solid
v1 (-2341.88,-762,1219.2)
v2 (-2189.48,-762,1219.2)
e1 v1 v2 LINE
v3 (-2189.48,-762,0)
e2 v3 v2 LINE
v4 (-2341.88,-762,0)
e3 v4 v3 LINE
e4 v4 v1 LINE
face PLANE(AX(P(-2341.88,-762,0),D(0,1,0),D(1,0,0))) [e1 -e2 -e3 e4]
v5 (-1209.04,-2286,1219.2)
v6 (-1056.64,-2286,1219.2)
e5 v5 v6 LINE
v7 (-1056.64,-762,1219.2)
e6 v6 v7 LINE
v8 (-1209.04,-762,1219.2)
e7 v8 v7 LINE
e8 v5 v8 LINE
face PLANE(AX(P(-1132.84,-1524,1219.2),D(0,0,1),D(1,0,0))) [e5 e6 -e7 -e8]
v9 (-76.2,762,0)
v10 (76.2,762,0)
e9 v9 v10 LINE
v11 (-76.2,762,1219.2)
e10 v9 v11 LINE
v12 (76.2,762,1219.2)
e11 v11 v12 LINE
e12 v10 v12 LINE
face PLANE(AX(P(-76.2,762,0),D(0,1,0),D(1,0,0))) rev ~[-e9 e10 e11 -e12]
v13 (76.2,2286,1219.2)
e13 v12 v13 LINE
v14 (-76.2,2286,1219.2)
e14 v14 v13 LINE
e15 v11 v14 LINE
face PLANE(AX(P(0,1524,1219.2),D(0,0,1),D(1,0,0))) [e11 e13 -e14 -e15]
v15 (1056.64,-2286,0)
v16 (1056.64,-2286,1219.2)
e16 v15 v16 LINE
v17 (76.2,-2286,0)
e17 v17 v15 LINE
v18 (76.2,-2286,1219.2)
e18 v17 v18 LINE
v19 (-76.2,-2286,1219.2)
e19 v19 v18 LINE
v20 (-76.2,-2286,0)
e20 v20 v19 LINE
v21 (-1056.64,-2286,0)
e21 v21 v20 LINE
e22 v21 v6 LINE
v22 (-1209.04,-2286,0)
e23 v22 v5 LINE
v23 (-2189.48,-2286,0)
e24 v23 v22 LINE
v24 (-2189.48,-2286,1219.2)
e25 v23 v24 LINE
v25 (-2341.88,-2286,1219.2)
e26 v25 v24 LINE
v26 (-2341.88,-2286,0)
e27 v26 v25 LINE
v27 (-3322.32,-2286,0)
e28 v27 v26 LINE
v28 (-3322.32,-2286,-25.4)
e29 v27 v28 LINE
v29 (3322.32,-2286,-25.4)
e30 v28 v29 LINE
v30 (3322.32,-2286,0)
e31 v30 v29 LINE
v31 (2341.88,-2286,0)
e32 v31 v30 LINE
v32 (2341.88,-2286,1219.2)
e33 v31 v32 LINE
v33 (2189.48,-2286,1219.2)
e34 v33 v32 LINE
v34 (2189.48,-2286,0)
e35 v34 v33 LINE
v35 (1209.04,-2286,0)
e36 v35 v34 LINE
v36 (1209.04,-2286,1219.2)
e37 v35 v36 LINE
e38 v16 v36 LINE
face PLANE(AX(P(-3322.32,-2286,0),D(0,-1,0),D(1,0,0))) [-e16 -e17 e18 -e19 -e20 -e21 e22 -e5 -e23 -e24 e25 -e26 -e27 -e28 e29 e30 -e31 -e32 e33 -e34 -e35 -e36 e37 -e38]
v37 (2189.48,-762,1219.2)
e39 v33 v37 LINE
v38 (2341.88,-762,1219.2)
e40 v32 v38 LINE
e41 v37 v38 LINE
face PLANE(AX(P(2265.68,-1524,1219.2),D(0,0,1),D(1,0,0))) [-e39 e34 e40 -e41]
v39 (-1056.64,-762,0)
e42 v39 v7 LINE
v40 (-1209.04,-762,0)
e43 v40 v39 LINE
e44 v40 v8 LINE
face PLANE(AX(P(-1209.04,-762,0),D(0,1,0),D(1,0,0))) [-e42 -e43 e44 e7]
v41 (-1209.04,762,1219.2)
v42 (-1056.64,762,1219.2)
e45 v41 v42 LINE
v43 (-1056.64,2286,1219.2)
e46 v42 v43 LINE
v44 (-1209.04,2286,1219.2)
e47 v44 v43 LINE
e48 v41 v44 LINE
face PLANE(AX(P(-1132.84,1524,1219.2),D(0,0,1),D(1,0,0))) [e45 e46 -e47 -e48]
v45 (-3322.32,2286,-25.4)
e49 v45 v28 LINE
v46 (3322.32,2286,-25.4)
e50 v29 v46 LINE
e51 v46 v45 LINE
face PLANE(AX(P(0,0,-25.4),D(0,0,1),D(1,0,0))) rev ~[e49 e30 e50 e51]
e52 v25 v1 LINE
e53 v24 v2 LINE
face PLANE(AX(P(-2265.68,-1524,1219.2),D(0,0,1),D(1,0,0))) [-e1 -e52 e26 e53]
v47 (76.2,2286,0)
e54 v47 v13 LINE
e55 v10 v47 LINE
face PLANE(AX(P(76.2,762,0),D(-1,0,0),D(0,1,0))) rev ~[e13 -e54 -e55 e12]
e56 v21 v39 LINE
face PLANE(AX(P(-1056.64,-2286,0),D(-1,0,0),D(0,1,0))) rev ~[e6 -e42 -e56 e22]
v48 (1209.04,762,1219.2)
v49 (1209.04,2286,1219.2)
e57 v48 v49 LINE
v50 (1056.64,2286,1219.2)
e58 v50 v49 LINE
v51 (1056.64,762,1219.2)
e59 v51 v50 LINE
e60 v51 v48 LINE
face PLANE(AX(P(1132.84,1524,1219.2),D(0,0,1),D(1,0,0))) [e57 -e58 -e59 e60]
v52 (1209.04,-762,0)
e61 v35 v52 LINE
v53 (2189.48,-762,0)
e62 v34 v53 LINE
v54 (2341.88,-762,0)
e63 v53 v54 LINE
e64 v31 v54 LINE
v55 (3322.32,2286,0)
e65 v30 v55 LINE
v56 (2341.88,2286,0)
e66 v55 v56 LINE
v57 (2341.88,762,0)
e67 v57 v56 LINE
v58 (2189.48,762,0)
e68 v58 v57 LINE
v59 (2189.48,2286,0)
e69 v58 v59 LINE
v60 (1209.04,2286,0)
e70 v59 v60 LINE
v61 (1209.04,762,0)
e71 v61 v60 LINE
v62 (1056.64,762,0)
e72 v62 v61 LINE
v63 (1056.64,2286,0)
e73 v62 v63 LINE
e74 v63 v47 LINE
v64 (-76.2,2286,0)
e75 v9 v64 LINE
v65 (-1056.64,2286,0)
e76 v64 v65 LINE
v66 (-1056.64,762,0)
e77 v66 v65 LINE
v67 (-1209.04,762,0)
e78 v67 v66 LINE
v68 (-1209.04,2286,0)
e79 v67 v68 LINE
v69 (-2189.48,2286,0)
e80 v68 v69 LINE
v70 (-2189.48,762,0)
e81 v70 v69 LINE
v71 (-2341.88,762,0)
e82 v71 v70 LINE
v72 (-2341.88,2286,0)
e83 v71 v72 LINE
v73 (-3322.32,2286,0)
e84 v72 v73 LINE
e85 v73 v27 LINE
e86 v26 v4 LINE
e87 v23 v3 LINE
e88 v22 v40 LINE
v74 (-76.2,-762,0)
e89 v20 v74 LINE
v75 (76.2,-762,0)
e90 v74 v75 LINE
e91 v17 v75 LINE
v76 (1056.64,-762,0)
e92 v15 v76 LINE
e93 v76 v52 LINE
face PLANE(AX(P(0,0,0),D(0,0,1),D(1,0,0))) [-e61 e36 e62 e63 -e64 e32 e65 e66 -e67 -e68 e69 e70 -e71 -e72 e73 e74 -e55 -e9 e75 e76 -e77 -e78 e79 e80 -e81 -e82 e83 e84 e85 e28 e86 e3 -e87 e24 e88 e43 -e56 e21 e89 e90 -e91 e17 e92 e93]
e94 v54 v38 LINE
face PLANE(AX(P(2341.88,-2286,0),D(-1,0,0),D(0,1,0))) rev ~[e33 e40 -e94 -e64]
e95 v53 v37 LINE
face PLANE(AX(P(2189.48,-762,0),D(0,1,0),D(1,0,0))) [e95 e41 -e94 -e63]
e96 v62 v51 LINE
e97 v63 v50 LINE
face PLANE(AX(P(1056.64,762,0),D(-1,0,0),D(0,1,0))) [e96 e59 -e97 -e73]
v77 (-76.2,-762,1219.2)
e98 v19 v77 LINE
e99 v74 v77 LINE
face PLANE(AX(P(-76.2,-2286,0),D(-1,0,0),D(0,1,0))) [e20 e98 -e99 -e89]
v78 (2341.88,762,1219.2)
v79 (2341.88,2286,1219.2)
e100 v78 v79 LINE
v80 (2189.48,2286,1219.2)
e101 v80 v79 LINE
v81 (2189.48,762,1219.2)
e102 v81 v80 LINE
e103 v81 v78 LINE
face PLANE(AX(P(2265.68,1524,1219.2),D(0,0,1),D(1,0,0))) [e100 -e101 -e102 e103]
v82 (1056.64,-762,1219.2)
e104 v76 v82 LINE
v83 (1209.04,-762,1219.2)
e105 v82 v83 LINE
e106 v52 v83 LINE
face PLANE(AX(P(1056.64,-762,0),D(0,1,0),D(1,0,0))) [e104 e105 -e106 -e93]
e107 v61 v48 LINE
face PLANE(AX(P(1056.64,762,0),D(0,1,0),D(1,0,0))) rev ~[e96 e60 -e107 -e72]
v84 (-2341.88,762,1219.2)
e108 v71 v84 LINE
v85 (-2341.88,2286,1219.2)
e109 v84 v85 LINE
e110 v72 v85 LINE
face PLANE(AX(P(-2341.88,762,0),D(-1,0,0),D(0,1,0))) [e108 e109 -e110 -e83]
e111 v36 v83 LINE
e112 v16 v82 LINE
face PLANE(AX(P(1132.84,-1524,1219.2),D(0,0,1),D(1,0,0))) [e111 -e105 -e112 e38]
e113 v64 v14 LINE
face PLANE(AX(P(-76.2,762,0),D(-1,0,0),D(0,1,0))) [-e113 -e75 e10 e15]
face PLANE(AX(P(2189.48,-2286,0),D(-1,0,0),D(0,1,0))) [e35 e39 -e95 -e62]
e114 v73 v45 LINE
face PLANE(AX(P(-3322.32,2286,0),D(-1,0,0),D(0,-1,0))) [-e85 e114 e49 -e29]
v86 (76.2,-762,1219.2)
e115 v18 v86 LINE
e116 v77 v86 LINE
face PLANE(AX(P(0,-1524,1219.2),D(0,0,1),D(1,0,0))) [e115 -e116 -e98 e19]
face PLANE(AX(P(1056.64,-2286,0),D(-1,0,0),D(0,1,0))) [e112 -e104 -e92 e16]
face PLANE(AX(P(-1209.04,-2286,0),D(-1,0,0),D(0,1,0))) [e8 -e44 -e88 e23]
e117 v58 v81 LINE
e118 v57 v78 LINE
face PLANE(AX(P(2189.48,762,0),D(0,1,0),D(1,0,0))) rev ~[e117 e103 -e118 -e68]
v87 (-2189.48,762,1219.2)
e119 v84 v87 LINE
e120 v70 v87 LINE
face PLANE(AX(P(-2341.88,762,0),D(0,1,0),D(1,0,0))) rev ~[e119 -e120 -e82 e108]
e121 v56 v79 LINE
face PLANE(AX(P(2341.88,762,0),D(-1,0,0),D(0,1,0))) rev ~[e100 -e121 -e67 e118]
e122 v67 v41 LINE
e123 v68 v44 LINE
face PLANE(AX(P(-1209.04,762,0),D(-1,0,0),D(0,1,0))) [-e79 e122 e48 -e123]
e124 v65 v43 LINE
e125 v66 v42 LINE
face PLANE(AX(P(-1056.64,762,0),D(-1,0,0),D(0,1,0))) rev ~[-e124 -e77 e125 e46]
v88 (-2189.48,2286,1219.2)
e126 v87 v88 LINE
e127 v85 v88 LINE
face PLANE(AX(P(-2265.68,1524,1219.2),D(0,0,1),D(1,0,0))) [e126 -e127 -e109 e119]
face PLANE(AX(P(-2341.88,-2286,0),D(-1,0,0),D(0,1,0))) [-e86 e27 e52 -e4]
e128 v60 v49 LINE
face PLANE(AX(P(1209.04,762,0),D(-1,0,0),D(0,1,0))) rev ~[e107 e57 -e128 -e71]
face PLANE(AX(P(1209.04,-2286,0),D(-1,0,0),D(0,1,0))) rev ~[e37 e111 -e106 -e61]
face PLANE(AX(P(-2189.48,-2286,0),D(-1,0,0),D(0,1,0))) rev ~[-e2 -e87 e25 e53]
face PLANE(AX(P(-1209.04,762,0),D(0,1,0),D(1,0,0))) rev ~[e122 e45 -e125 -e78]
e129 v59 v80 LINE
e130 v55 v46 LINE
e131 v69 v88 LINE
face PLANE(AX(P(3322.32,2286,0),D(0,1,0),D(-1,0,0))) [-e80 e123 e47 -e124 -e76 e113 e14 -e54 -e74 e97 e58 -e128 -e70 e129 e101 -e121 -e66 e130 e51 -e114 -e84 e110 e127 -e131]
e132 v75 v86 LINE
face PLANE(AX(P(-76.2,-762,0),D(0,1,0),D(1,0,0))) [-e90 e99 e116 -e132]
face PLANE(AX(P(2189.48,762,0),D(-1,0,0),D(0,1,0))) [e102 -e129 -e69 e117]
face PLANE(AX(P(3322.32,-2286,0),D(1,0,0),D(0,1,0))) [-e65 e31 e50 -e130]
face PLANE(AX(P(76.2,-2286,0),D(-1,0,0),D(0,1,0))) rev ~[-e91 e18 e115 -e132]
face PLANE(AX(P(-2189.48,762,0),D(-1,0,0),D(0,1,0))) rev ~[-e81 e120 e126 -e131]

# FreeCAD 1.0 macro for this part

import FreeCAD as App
import Part
import Sketcher
Q = App.Units.Quantity

doc = App.newDocument("Part")
params = doc.addObject("Spreadsheet::Sheet", "Params")
for row, (alias, value) in enumerate([
    ("sketch1_height", "180 in"),
    ("sketch1_width", "261.6 in"),
    ("pad1_length", "1 in"),
    ("sketch2_width", "6 in"),
    ("sketch2_height", "60 in"),
    ("pad2_length", "48 in"),
], start=1):
    params.set(f"A{row}", alias)
    params.set(f"B{row}", "=" + value)
    params.setAlias(f"B{row}", alias)

body = doc.addObject("PartDesign::Body", "Body")

sketch1 = body.newObject("Sketcher::SketchObject", "Sketch")
sketch1.AttachmentSupport = (doc.getObject("XY_Plane"), [""])
sketch1.MapMode = "FlatFace"
sketch1.addGeometry([
    Part.LineSegment(App.Vector(-3322.32, -2286, 0), App.Vector(3322.32, -2286, 0)),
    Part.LineSegment(App.Vector(3322.32, -2286, 0), App.Vector(3322.32, 2286, 0)),
    Part.LineSegment(App.Vector(3322.32, 2286, 0), App.Vector(-3322.32, 2286, 0)),
    Part.LineSegment(App.Vector(-3322.32, 2286, 0), App.Vector(-3322.32, -2286, 0)),
], False)
sketch1.addConstraint([
    Sketcher.Constraint("Coincident", 0, 2, 1, 1),
    Sketcher.Constraint("Coincident", 1, 2, 2, 1),
    Sketcher.Constraint("Coincident", 2, 2, 3, 1),
    Sketcher.Constraint("Coincident", 3, 2, 0, 1),
    Sketcher.Constraint("Horizontal", 0),
    Sketcher.Constraint("Vertical", 1),
    Sketcher.Constraint("Horizontal", 2),
    Sketcher.Constraint("Vertical", 3),
    Sketcher.Constraint("Symmetric", 0, 2, 2, 2, -1, 1),
    Sketcher.Constraint("DistanceY", 1, 1, 1, 2, Q("180 in")),
    Sketcher.Constraint("DistanceX", 0, 1, 0, 2, Q("261.6 in")),
])
sketch1.setExpression("Constraints[9]", "Params.sketch1_height")
sketch1.setExpression("Constraints[10]", "Params.sketch1_width")
pad1 = body.newObject("PartDesign::Pad", "Pad")
pad1.Profile = sketch1
pad1.setExpression("Length", "Params.pad1_length")
pad1.Reversed = True

sketch2 = body.newObject("Sketcher::SketchObject", "Sketch001")
sketch2.AttachmentSupport = (doc.getObject("XY_Plane"), [""])
sketch2.MapMode = "FlatFace"
sketch2.addGeometry([
    Part.LineSegment(App.Vector(-2341.88, -762, 0), App.Vector(-2341.88, -2286, 0)),
    Part.LineSegment(App.Vector(-2341.88, -2286, 0), App.Vector(-2189.48, -2286, 0)),
    Part.LineSegment(App.Vector(-2189.48, -2286, 0), App.Vector(-2189.48, -762, 0)),
    Part.LineSegment(App.Vector(-2189.48, -762, 0), App.Vector(-2341.88, -762, 0)),
    Part.LineSegment(App.Vector(-2341.88, 2286, 0), App.Vector(-2341.88, 762, 0)),
    Part.LineSegment(App.Vector(-2341.88, 762, 0), App.Vector(-2189.48, 762, 0)),
    Part.LineSegment(App.Vector(-2189.48, 762, 0), App.Vector(-2189.48, 2286, 0)),
    Part.LineSegment(App.Vector(-2189.48, 2286, 0), App.Vector(-2341.88, 2286, 0)),
    Part.LineSegment(App.Vector(-1209.04, -762, 0), App.Vector(-1209.04, -2286, 0)),
    Part.LineSegment(App.Vector(-1209.04, -2286, 0), App.Vector(-1056.64, -2286, 0)),
    Part.LineSegment(App.Vector(-1056.64, -2286, 0), App.Vector(-1056.64, -762, 0)),
    Part.LineSegment(App.Vector(-1056.64, -762, 0), App.Vector(-1209.04, -762, 0)),
    Part.LineSegment(App.Vector(-1209.04, 2286, 0), App.Vector(-1209.04, 762, 0)),
    Part.LineSegment(App.Vector(-1209.04, 762, 0), App.Vector(-1056.64, 762, 0)),
    Part.LineSegment(App.Vector(-1056.64, 762, 0), App.Vector(-1056.64, 2286, 0)),
    Part.LineSegment(App.Vector(-1056.64, 2286, 0), App.Vector(-1209.04, 2286, 0)),
    Part.LineSegment(App.Vector(-76.2, -762, 0), App.Vector(-76.2, -2286, 0)),
    Part.LineSegment(App.Vector(-76.2, -2286, 0), App.Vector(76.2, -2286, 0)),
    Part.LineSegment(App.Vector(76.2, -2286, 0), App.Vector(76.2, -762, 0)),
    Part.LineSegment(App.Vector(76.2, -762, 0), App.Vector(-76.2, -762, 0)),
    Part.LineSegment(App.Vector(-76.2, 2286, 0), App.Vector(-76.2, 762, 0)),
    Part.LineSegment(App.Vector(-76.2, 762, 0), App.Vector(76.2, 762, 0)),
    Part.LineSegment(App.Vector(76.2, 762, 0), App.Vector(76.2, 2286, 0)),
    Part.LineSegment(App.Vector(76.2, 2286, 0), App.Vector(-76.2, 2286, 0)),
    Part.LineSegment(App.Vector(1056.64, 2286, 0), App.Vector(1056.64, 762, 0)),
    Part.LineSegment(App.Vector(1056.64, 762, 0), App.Vector(1209.04, 762, 0)),
    Part.LineSegment(App.Vector(1209.04, 762, 0), App.Vector(1209.04, 2286, 0)),
    Part.LineSegment(App.Vector(1209.04, 2286, 0), App.Vector(1056.64, 2286, 0)),
    Part.LineSegment(App.Vector(1056.64, -762, 0), App.Vector(1056.64, -2286, 0)),
    Part.LineSegment(App.Vector(1056.64, -2286, 0), App.Vector(1209.04, -2286, 0)),
    Part.LineSegment(App.Vector(1209.04, -2286, 0), App.Vector(1209.04, -762, 0)),
    Part.LineSegment(App.Vector(1209.04, -762, 0), App.Vector(1056.64, -762, 0)),
    Part.LineSegment(App.Vector(2189.48, -762, 0), App.Vector(2189.48, -2286, 0)),
    Part.LineSegment(App.Vector(2189.48, -2286, 0), App.Vector(2341.88, -2286, 0)),
    Part.LineSegment(App.Vector(2341.88, -2286, 0), App.Vector(2341.88, -762, 0)),
    Part.LineSegment(App.Vector(2341.88, -762, 0), App.Vector(2189.48, -762, 0)),
    Part.LineSegment(App.Vector(2189.48, 2286, 0), App.Vector(2189.48, 762, 0)),
    Part.LineSegment(App.Vector(2189.48, 762, 0), App.Vector(2341.88, 762, 0)),
    Part.LineSegment(App.Vector(2341.88, 762, 0), App.Vector(2341.88, 2286, 0)),
    Part.LineSegment(App.Vector(2341.88, 2286, 0), App.Vector(2189.48, 2286, 0)),
], False)
sketch2.addConstraint([
    Sketcher.Constraint("Coincident", 0, 2, 1, 1),
    Sketcher.Constraint("Coincident", 1, 2, 2, 1),
    Sketcher.Constraint("Coincident", 2, 2, 3, 1),
    Sketcher.Constraint("Coincident", 3, 2, 0, 1),
    Sketcher.Constraint("Coincident", 4, 2, 5, 1),
    Sketcher.Constraint("Coincident", 5, 2, 6, 1),
    Sketcher.Constraint("Coincident", 6, 2, 7, 1),
    Sketcher.Constraint("Coincident", 7, 2, 4, 1),
    Sketcher.Constraint("Coincident", 8, 2, 9, 1),
    Sketcher.Constraint("Coincident", 9, 2, 10, 1),
    Sketcher.Constraint("Coincident", 10, 2, 11, 1),
    Sketcher.Constraint("Coincident", 11, 2, 8, 1),
    Sketcher.Constraint("Coincident", 12, 2, 13, 1),
    Sketcher.Constraint("Coincident", 13, 2, 14, 1),
    Sketcher.Constraint("Coincident", 14, 2, 15, 1),
    Sketcher.Constraint("Coincident", 15, 2, 12, 1),
    Sketcher.Constraint("Coincident", 16, 2, 17, 1),
    Sketcher.Constraint("Coincident", 17, 2, 18, 1),
    Sketcher.Constraint("Coincident", 18, 2, 19, 1),
    Sketcher.Constraint("Coincident", 19, 2, 16, 1),
    Sketcher.Constraint("Coincident", 20, 2, 21, 1),
    Sketcher.Constraint("Coincident", 21, 2, 22, 1),
    Sketcher.Constraint("Coincident", 22, 2, 23, 1),
    Sketcher.Constraint("Coincident", 23, 2, 20, 1),
    Sketcher.Constraint("Coincident", 24, 2, 25, 1),
    Sketcher.Constraint("Coincident", 25, 2, 26, 1),
    Sketcher.Constraint("Coincident", 26, 2, 27, 1),
    Sketcher.Constraint("Coincident", 27, 2, 24, 1),
    Sketcher.Constraint("Coincident", 28, 2, 29, 1),
    Sketcher.Constraint("Coincident", 29, 2, 30, 1),
    Sketcher.Constraint("Coincident", 30, 2, 31, 1),
    Sketcher.Constraint("Coincident", 31, 2, 28, 1),
    Sketcher.Constraint("Coincident", 32, 2, 33, 1),
    Sketcher.Constraint("Coincident", 33, 2, 34, 1),
    Sketcher.Constraint("Coincident", 34, 2, 35, 1),
    Sketcher.Constraint("Coincident", 35, 2, 32, 1),
    Sketcher.Constraint("Coincident", 36, 2, 37, 1),
    Sketcher.Constraint("Coincident", 37, 2, 38, 1),
    Sketcher.Constraint("Coincident", 38, 2, 39, 1),
    Sketcher.Constraint("Coincident", 39, 2, 36, 1),
    Sketcher.Constraint("Vertical", 0),
    Sketcher.Constraint("Horizontal", 1),
    Sketcher.Constraint("Vertical", 2),
    Sketcher.Constraint("Horizontal", 3),
    Sketcher.Constraint("Vertical", 4),
    Sketcher.Constraint("Horizontal", 5),
    Sketcher.Constraint("Vertical", 6),
    Sketcher.Constraint("Horizontal", 7),
    Sketcher.Constraint("Vertical", 8),
    Sketcher.Constraint("Horizontal", 9),
    Sketcher.Constraint("Vertical", 10),
    Sketcher.Constraint("Horizontal", 11),
    Sketcher.Constraint("Vertical", 12),
    Sketcher.Constraint("Horizontal", 13),
    Sketcher.Constraint("Vertical", 14),
    Sketcher.Constraint("Horizontal", 15),
    Sketcher.Constraint("Vertical", 16),
    Sketcher.Constraint("Horizontal", 17),
    Sketcher.Constraint("Vertical", 18),
    Sketcher.Constraint("Horizontal", 19),
    Sketcher.Constraint("Vertical", 20),
    Sketcher.Constraint("Horizontal", 21),
    Sketcher.Constraint("Vertical", 22),
    Sketcher.Constraint("Horizontal", 23),
    Sketcher.Constraint("Vertical", 24),
    Sketcher.Constraint("Horizontal", 25),
    Sketcher.Constraint("Vertical", 26),
    Sketcher.Constraint("Horizontal", 27),
    Sketcher.Constraint("Vertical", 28),
    Sketcher.Constraint("Horizontal", 29),
    Sketcher.Constraint("Vertical", 30),
    Sketcher.Constraint("Horizontal", 31),
    Sketcher.Constraint("Vertical", 32),
    Sketcher.Constraint("Horizontal", 33),
    Sketcher.Constraint("Vertical", 34),
    Sketcher.Constraint("Horizontal", 35),
    Sketcher.Constraint("Vertical", 36),
    Sketcher.Constraint("Horizontal", 37),
    Sketcher.Constraint("Vertical", 38),
    Sketcher.Constraint("Horizontal", 39),
    Sketcher.Constraint("Symmetric", 18, 2, 20, 2, -1, 1),
    Sketcher.Constraint("Symmetric", 16, 2, 22, 2, -1, 1),
    Sketcher.Constraint("Symmetric", 10, 2, 24, 2, -1, 1),
    Sketcher.Constraint("Symmetric", 8, 2, 26, 2, -1, 1),
    Sketcher.Constraint("Symmetric", 14, 2, 28, 2, -1, 1),
    Sketcher.Constraint("Symmetric", 12, 2, 30, 2, -1, 1),
    Sketcher.Constraint("Symmetric", 6, 2, 32, 2, -1, 1),
    Sketcher.Constraint("Symmetric", 4, 2, 34, 2, -1, 1),
    Sketcher.Constraint("Symmetric", 2, 2, 36, 2, -1, 1),
    Sketcher.Constraint("Symmetric", 0, 2, 38, 2, -1, 1),
    Sketcher.Constraint("Symmetric", 13, 2, 24, 2, -2),
    Sketcher.Constraint("Symmetric", 15, 2, 26, 2, -2),
    Sketcher.Constraint("Symmetric", 1, 2, 32, 2, -2),
    Sketcher.Constraint("Symmetric", 3, 2, 34, 2, -2),
    Sketcher.Constraint("Horizontal", 1, 2, 8, 2),
    Sketcher.Constraint("Horizontal", 3, 2, 10, 2),
    Sketcher.Constraint("Horizontal", 9, 2, 16, 2),
    Sketcher.Constraint("Horizontal", 11, 2, 18, 2),
    Sketcher.Constraint("Vertical", 19, 2, 20, 2),
    Sketcher.Constraint("Equal", 7, 9),
    Sketcher.Constraint("Equal", 15, 17),
    Sketcher.Constraint("DistanceX", 1, 1, 1, 2, Q("6 in")),
    Sketcher.Constraint("DistanceY", 0, 2, 0, 1, Q("60 in")),
    Sketcher.Constraint("DistanceY", 0, 2, -1, 1, Q("90 in")),
    Sketcher.Constraint("DistanceX", 0, 2, -1, 1, Q("92.2 in")),
    Sketcher.Constraint("DistanceX", 8, 2, -1, 1, Q("47.6 in")),
])
sketch2.setExpression("Constraints[101]", "Params.sketch2_width")
sketch2.setExpression("Constraints[102]", "Params.sketch2_height")
pad2 = body.newObject("PartDesign::Pad", "Pad001")
pad2.Profile = sketch2
pad2.setExpression("Length", "Params.pad2_length")

doc.recompute()
